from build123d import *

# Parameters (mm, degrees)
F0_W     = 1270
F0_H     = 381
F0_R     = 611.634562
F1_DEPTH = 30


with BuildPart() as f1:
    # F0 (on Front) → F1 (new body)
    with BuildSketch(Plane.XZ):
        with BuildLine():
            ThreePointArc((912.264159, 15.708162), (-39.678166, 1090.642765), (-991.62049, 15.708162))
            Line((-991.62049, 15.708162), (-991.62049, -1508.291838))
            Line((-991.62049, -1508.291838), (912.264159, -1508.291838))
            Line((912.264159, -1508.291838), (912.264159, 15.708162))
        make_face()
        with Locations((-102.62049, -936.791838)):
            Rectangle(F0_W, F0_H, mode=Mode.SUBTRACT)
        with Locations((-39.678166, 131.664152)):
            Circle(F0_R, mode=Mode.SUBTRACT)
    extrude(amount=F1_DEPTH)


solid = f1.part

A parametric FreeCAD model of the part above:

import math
import FreeCAD as App
import Part
import Sketcher
Q = App.Units.Quantity

doc = App.newDocument("Part")
body = doc.addObject("PartDesign::Body", "Body")

# Sketch on XZ plane
sketch1 = doc.addObject("Sketcher::SketchObject", "Sketch")
body.addObject(sketch1)
sketch1.AttachmentSupport = (doc.XZ_Plane, [""])
sketch1.MapMode = "FlatFace"
sketch1.addGeometry(Part.ArcOfCircle(Part.Circle(App.Vector(-40, 132, 0), App.Vector(0, 0, 1), 959), math.radians(-7), math.radians(187)), False)
sketch1.addGeometry(Part.LineSegment(App.Vector(-992, 16, 0), App.Vector(-992, -1508, 0)), False)
sketch1.addGeometry(Part.LineSegment(App.Vector(-992, -1508, 0), App.Vector(912, -1508, 0)), False)
sketch1.addGeometry(Part.LineSegment(App.Vector(912, -1508, 0), App.Vector(912, 16, 0)), False)
sketch1.addGeometry(Part.LineSegment(App.Vector(532, -1127, 0), App.Vector(-738, -1127, 0)), False)
sketch1.addGeometry(Part.LineSegment(App.Vector(-738, -1127, 0), App.Vector(-738, -746, 0)), False)
sketch1.addGeometry(Part.LineSegment(App.Vector(-738, -746, 0), App.Vector(532, -746, 0)), False)
sketch1.addGeometry(Part.LineSegment(App.Vector(532, -746, 0), App.Vector(532, -1127, 0)), False)
sketch1.addGeometry(Part.Circle(App.Vector(-40, 132, 0), App.Vector(0, 0, 1), 612), False)
sketch1.addConstraint(Sketcher.Constraint("Coincident", 0, 2, 1, 1))
sketch1.addConstraint(Sketcher.Constraint("Coincident", 1, 2, 2, 1))
sketch1.addConstraint(Sketcher.Constraint("Coincident", 2, 2, 3, 1))
sketch1.addConstraint(Sketcher.Constraint("Coincident", 3, 2, 0, 1))
sketch1.addConstraint(Sketcher.Constraint("Coincident", 4, 2, 5, 1))
sketch1.addConstraint(Sketcher.Constraint("Coincident", 5, 2, 6, 1))
sketch1.addConstraint(Sketcher.Constraint("Coincident", 6, 2, 7, 1))
sketch1.addConstraint(Sketcher.Constraint("Coincident", 7, 2, 4, 1))
sketch1.addConstraint(Sketcher.Constraint("Vertical", 1))
sketch1.addConstraint(Sketcher.Constraint("Horizontal", 2))
sketch1.addConstraint(Sketcher.Constraint("Vertical", 3))
sketch1.addConstraint(Sketcher.Constraint("Horizontal", 4))
sketch1.addConstraint(Sketcher.Constraint("Vertical", 5))
sketch1.addConstraint(Sketcher.Constraint("Horizontal", 6))
sketch1.addConstraint(Sketcher.Constraint("Vertical", 7))
sketch1.addConstraint(Sketcher.Constraint("Coincident", 8, 3, 0, 3))
sketch1.addConstraint(Sketcher.Constraint("Equal", 1, 3))
sketch1.addConstraint(Sketcher.Constraint("DistanceX", 4, 2, 4, 1, Q("50 in")))
sketch1.addConstraint(Sketcher.Constraint("DistanceY", 1, 2, 1, 1, Q("60 in")))
sketch1.addConstraint(Sketcher.Constraint("DistanceY", 5, 1, 5, 2, Q("15 in")))
sketch1.addConstraint(Sketcher.Constraint("DistanceX", 1, 2, 4, 2, Q("10 in")))
sketch1.addConstraint(Sketcher.Constraint("DistanceY", 1, 2, 4, 2, Q("15 in")))
sketch1.addConstraint(Sketcher.Constraint("Diameter", 8, Q("1223.269124 mm")))
sketch1.addConstraint(Sketcher.Constraint("Radius", 0, Q("958.978613 mm")))
sketch1.addConstraint(Sketcher.Constraint("DistanceX", 2, 1, 2, 2, Q("1903.884649 mm")))
sketch1.addConstraint(Sketcher.Constraint("DistanceY", -1, 1, 0, 3, Q("131.664152 mm")))
sketch1.addConstraint(Sketcher.Constraint("DistanceX", 0, 2, -1, 1, Q("991.62049 mm")))
pad1 = doc.addObject("PartDesign::Pad", "Pad")
body.addObject(pad1)
pad1.Profile = sketch1
pad1.Length = 30

doc.recompute()
